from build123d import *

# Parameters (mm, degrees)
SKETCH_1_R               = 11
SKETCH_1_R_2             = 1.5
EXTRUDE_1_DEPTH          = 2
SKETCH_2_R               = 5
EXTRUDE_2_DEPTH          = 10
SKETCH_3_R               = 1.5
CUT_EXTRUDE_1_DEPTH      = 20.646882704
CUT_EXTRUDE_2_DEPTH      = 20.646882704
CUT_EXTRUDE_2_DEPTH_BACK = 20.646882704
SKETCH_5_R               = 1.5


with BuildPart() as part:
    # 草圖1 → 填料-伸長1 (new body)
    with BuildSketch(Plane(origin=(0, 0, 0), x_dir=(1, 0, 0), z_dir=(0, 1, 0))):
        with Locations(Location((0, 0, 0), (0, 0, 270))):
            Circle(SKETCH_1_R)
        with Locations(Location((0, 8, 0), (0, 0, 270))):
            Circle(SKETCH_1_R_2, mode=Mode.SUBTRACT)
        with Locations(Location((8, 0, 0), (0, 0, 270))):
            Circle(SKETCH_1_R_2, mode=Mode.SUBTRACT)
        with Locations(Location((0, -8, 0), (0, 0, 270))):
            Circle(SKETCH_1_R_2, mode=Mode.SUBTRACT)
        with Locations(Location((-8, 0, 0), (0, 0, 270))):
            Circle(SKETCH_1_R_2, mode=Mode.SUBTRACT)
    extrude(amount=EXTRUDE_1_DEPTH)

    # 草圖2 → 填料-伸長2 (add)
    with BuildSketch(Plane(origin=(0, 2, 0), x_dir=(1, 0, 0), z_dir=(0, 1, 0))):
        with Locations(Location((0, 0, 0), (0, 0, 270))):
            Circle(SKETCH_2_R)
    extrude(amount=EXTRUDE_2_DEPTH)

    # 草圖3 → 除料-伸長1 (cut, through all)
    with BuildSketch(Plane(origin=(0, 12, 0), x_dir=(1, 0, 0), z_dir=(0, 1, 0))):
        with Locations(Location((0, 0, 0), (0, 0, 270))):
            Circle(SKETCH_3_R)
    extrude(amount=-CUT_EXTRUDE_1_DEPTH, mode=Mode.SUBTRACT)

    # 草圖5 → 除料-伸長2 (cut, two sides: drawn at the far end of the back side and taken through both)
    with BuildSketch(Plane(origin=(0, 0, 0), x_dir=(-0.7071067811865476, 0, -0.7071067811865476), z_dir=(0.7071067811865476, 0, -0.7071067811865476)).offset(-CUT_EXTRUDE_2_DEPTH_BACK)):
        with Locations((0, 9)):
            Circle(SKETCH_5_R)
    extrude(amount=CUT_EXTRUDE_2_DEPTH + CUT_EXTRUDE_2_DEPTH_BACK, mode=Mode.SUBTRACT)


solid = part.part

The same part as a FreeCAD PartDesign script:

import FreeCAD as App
import Part
import Sketcher
Q = App.Units.Quantity

doc = App.newDocument("Part")
body = doc.addObject("PartDesign::Body", "Body")

# Sketch on XZ plane
sketch1 = body.newObject("Sketcher::SketchObject", "Sketch")
sketch1.AttachmentSupport = (doc.getObject("XZ_Plane"), [""])
sketch1.MapMode = "FlatFace"
sketch1.addGeometry([
    Part.Circle(App.Vector(0, 0, 0), App.Vector(0, 0, 1), 11),  # 0
    Part.Circle(App.Vector(0, -8, 0), App.Vector(0, 0, 1), 1.5),  # 1
    Part.Circle(App.Vector(-8, 0, 0), App.Vector(0, 0, 1), 1.5),  # 2
    Part.Circle(App.Vector(8, 0, 0), App.Vector(0, 0, 1), 1.5),  # 3
    Part.Circle(App.Vector(0, 8, 0), App.Vector(0, 0, 1), 1.5),  # 4
], False)
sketch1.addConstraint([
    Sketcher.Constraint("Coincident", 0, 3, -1, 1),
    Sketcher.Constraint("Equal", 1, 2),
    Sketcher.Constraint("Equal", 2, 3),
    Sketcher.Constraint("Equal", 3, 4),
    Sketcher.Constraint("Symmetric", 2, 3, 3, 3, -1, 1),
    Sketcher.Constraint("Symmetric", 1, 3, 4, 3, -1, 1),
    Sketcher.Constraint("PointOnObject", 1, 3, -2),
    Sketcher.Constraint("PointOnObject", 2, 3, -1),
    Sketcher.Constraint("Diameter", 0, Q("22 mm")),
    Sketcher.Constraint("Diameter", 1, Q("3 mm")),
    Sketcher.Constraint("DistanceY", 1, 3, -1, 1, Q("8 mm")),
    Sketcher.Constraint("DistanceX", 2, 3, -1, 1, Q("8 mm")),
])
pad1 = body.newObject("PartDesign::Pad", "Pad")
pad1.Profile = sketch1
pad1.Length = 2
pad1.Reversed = True

# Sketch on XZ plane
sketch2 = body.newObject("Sketcher::SketchObject", "Sketch001")
sketch2.AttachmentSupport = (doc.getObject("XZ_Plane"), [""])
sketch2.MapMode = "FlatFace"
sketch2.AttachmentOffset = App.Placement(App.Vector(0, 0, -2), App.Rotation())
sketch2.addGeometry(Part.Circle(App.Vector(0, 0, 0), App.Vector(0, 0, 1), 5), False)
sketch2.addConstraint([
    Sketcher.Constraint("Coincident", 0, 3, -1, 1),
    Sketcher.Constraint("Diameter", 0, Q("10 mm")),
])
pad2 = body.newObject("PartDesign::Pad", "Pad001")
pad2.Profile = sketch2
pad2.Length = 10
pad2.Reversed = True

# Sketch on XZ plane
sketch3 = body.newObject("Sketcher::SketchObject", "Sketch002")
sketch3.AttachmentSupport = (doc.getObject("XZ_Plane"), [""])
sketch3.MapMode = "FlatFace"
sketch3.AttachmentOffset = App.Placement(App.Vector(0, 0, -12), App.Rotation())
sketch3.addGeometry(Part.Circle(App.Vector(0, 0, 0), App.Vector(0, 0, 1), 1.5), False)
sketch3.addConstraint([
    Sketcher.Constraint("Coincident", 0, 3, -1, 1),
    Sketcher.Constraint("Diameter", 0, Q("3 mm")),
])
pocket1 = body.newObject("PartDesign::Pocket", "Pocket")
pocket1.Profile = sketch3
pocket1.Type = "ThroughAll"
pocket1.Reversed = True

# Sketch on an angled plane
sketch4 = body.newObject("Sketcher::SketchObject", "Sketch003")
sketch4.Placement = App.Placement(App.Vector(0, 0, 0), App.Rotation(App.Vector(-0.707106781, 0, -0.707106781), App.Vector(0, 0.999999999, 0), App.Vector(0.707106781, 0, -0.707106781), "ZXY"))
sketch4.addGeometry(Part.Circle(App.Vector(0, 9, 0), App.Vector(0, 0, 1), 1.5), False)
sketch4.addConstraint([
    Sketcher.Constraint("PointOnObject", 0, 3, -2),
    Sketcher.Constraint("Diameter", 0, Q("3 mm")),
    Sketcher.Constraint("DistanceY", -1, 1, 0, 3, Q("9 mm")),
])
pocket2 = body.newObject("PartDesign::Pocket", "Pocket001")
pocket2.Profile = sketch4
pocket2.Type = "ThroughAll"
pocket2.Midplane = True

doc.recompute()
